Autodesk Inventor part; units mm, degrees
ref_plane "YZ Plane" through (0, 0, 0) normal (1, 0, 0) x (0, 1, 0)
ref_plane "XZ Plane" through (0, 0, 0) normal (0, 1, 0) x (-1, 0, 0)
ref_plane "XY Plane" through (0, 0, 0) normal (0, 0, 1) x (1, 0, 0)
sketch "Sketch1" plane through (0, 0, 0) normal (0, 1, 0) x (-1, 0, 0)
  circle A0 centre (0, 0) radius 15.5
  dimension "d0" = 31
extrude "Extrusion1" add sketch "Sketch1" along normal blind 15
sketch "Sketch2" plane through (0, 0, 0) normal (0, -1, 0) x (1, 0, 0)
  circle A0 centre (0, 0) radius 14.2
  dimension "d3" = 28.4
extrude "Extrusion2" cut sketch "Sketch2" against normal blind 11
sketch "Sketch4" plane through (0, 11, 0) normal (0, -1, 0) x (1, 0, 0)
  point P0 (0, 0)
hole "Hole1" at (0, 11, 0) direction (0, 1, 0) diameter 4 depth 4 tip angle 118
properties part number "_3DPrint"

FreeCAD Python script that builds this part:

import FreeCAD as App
import Part
import Sketcher
from FreeCAD import Vector

doc = App.newDocument("Part")
body = doc.addObject("PartDesign::Body", "Body")

# Sketch on XZ plane
sketch1 = body.newObject("Sketcher::SketchObject", "Sketch")
sketch1.AttachmentSupport = (doc.getObject("XZ_Plane"), [""])
sketch1.MapMode = "FlatFace"
sketch1.addGeometry(Part.Circle(Vector(0, 0, 0), Vector(0, 0, 1), 16), False)
sketch1.addConstraint([
    Sketcher.Constraint("Coincident", 0, 3, -1, 1),
    Sketcher.Constraint("Diameter", 0, 31.0),
])
pad1 = body.newObject("PartDesign::Pad", "Pad")
pad1.Profile = sketch1
pad1.Length = 15
pad1.Reversed = True

# Sketch on XZ plane
sketch2 = body.newObject("Sketcher::SketchObject", "Sketch001")
sketch2.AttachmentSupport = (doc.getObject("XZ_Plane"), [""])
sketch2.MapMode = "FlatFace"
sketch2.addGeometry(Part.Circle(Vector(0, 0, 0), Vector(0, 0, 1), 14), False)
sketch2.addConstraint([
    Sketcher.Constraint("Coincident", 0, 3, -1, 1),
    Sketcher.Constraint("Diameter", 0, 28.4),
])
pocket1 = body.newObject("PartDesign::Pocket", "Pocket")
pocket1.Profile = sketch2
pocket1.Length = 11

# Sketch on XZ plane
sketch3 = body.newObject("Sketcher::SketchObject", "Sketch002")
sketch3.AttachmentSupport = (doc.getObject("XZ_Plane"), [""])
sketch3.MapMode = "FlatFace"
sketch3.AttachmentOffset = App.Placement(Vector(0, 0, -11), App.Rotation())
sketch3.addGeometry(Part.Circle(Vector(0, 0, 0), Vector(0, 0, 1), 2), False)
sketch3.addConstraint([
    Sketcher.Constraint("Coincident", 0, 3, -1, 1),
    Sketcher.Constraint("Diameter", 0, 4.0),
])
doc.recompute()
hole = body.newObject("PartDesign::Hole", "Hole")
hole.Profile = sketch3
hole.ThreadType = "None"
hole.Diameter = 4
hole.DepthType = "Dimension"
hole.Depth = 4
hole.DrillPoint = "Angled"
hole.DrillPointAngle = 118

doc.recompute()
